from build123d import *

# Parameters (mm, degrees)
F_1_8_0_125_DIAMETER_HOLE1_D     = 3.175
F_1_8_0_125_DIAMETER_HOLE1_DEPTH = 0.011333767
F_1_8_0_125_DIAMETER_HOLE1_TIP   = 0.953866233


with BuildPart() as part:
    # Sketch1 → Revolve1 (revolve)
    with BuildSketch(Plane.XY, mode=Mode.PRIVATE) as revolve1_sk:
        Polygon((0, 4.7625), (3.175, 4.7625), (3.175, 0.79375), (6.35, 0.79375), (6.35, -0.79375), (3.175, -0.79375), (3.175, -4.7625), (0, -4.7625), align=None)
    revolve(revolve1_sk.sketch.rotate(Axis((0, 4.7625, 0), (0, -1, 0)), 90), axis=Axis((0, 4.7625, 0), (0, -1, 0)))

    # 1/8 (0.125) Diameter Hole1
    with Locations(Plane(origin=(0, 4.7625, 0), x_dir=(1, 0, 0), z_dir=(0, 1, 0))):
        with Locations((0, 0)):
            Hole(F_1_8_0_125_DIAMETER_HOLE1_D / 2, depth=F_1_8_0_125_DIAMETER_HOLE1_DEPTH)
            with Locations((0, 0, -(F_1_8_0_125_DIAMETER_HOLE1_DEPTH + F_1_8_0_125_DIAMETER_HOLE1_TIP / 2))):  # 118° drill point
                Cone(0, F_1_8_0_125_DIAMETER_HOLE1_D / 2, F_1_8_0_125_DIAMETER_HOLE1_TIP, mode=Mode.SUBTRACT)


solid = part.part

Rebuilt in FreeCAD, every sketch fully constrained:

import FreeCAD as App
import Part
import Sketcher
Q = App.Units.Quantity


def add_polygon(sketch, points):
    """Adds a closed chain of lines whose ends are joined by coincident constraints."""
    first, n = sketch.GeometryCount, len(points)
    for a, b in zip(points, points[1:] + points[:1]):
        sketch.addGeometry(Part.LineSegment(App.Vector(*a, 0), App.Vector(*b, 0)), False)
    for i in range(n):
        sketch.addConstraint(Sketcher.Constraint("Coincident", first + i, 2, first + (i + 1) % n, 1))

doc = App.newDocument("Part")
params = doc.addObject("Spreadsheet::Sheet", "Params")
for row, (alias, value) in enumerate([
    ("sketch1_width", "0.125 in"),
    ("sketch1_height", "0.375 in"),
    ("sketch1_height2", "0.15625 in"),
    ("revolution_angle", "360 deg"),
    ("sketch2_diameter", "0.125 in"),
    ("hole_diameter", "0.125 in"),
    ("hole_depth", "0.011334 mm"),
], start=1):
    params.set(f"A{row}", alias)
    params.set(f"B{row}", "=" + value)
    params.setAlias(f"B{row}", alias)

body = doc.addObject("PartDesign::Body", "Body")

# Sketch on XY plane
sketch1 = doc.addObject("Sketcher::SketchObject", "Sketch")
body.addObject(sketch1)
sketch1.AttachmentSupport = (doc.XY_Plane, [""])
sketch1.MapMode = "FlatFace"
add_polygon(sketch1, [(3.2, 4.8), (0, 4.8), (0, -4.8), (3.2, -4.8), (3.2, -0.8), (6.3, -0.8), (6.3, 0.8), (3.2, 0.8)])  # lines 0-7
sketch1.addConstraint([
    Sketcher.Constraint("Horizontal", 0),
    Sketcher.Constraint("Vertical", 1),
    Sketcher.Constraint("Horizontal", 2),
    Sketcher.Constraint("Vertical", 3),
    Sketcher.Constraint("Horizontal", 4),
    Sketcher.Constraint("Vertical", 5),
    Sketcher.Constraint("Horizontal", 6),
    Sketcher.Constraint("Vertical", 7),
    Sketcher.Constraint("Symmetric", 0, 2, 1, 2, -1, 1),
    Sketcher.Constraint("Symmetric", 3, 2, 6, 2, -1),
    Sketcher.Constraint("Equal", 2, 4),
    Sketcher.Constraint("DistanceX", 0, 2, 0, 1, Q("0.125 in")),
    Sketcher.Constraint("DistanceY", 1, 2, 1, 1, Q("0.375 in")),
    Sketcher.Constraint("DistanceY", 3, 1, 3, 2, Q("0.15625 in")),
])
sketch1.setExpression("Constraints[19]", "Params.sketch1_width")
sketch1.setExpression("Constraints[20]", "Params.sketch1_height")
sketch1.setExpression("Constraints[21]", "Params.sketch1_height2")
revolution = doc.addObject("PartDesign::Revolution", "Revolution")
body.addObject(revolution)
revolution.Profile = sketch1
revolution.ReferenceAxis = (sketch1, ["V_Axis"])
revolution.setExpression("Angle", "Params.revolution_angle")

# Sketch on XZ plane
sketch2 = doc.addObject("Sketcher::SketchObject", "Sketch001")
body.addObject(sketch2)
sketch2.AttachmentSupport = (doc.XZ_Plane, [""])
sketch2.MapMode = "FlatFace"
sketch2.AttachmentOffset = App.Placement(App.Vector(0, 0, -0.1875 * 25.4), App.Rotation())
sketch2.addGeometry(Part.Circle(App.Vector(0, 0, 0), App.Vector(0, 0, 1), 1.6), False)
sketch2.addConstraint([
    Sketcher.Constraint("Coincident", 0, 3, -1, 1),
    Sketcher.Constraint("Diameter", 0, Q("0.125 in")),
])
sketch2.setExpression("Constraints[1]", "Params.sketch2_diameter")
doc.recompute()
hole = doc.addObject("PartDesign::Hole", "Hole")
body.addObject(hole)
hole.Profile = sketch2
hole.ThreadType = "None"
hole.setExpression("Diameter", "Params.hole_diameter")
hole.DepthType = "Dimension"
hole.setExpression("Depth", "Params.hole_depth")
hole.DrillPoint = "Angled"
hole.DrillPointAngle = 118
hole.Reversed = True

doc.recompute()
